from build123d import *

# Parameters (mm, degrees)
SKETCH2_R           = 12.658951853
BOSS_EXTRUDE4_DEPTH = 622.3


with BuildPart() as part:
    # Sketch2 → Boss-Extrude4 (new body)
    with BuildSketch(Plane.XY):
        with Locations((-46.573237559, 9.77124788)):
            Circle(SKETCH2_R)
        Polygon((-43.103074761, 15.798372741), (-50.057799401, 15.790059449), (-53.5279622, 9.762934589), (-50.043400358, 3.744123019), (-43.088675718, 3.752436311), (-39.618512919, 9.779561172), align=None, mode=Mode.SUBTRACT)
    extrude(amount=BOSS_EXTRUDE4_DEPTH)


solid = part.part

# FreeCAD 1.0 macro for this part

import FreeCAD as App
import Part
import Sketcher

V = App.Vector
Q = App.Units.Quantity


def add_polygon(sketch, points):
    """Adds a closed chain of lines whose ends are joined by coincident constraints."""
    first, n = sketch.GeometryCount, len(points)
    for a, b in zip(points, points[1:] + points[:1]):
        sketch.addGeometry(Part.LineSegment(App.Vector(*a, 0), App.Vector(*b, 0)), False)
    for i in range(n):
        sketch.addConstraint(Sketcher.Constraint("Coincident", first + i, 2, first + (i + 1) % n, 1))

doc = App.newDocument("Part")
body = doc.addObject("PartDesign::Body", "Body")

sketch1 = body.newObject("Sketcher::SketchObject", "Sketch")
sketch1.AttachmentSupport = (doc.getObject("XY_Plane"), [""])
sketch1.MapMode = "FlatFace"
sketch1.addGeometry(Part.Circle(V(-46.573238, 9.771248, 0), V(0, 0, 1), 12.658952), False)
add_polygon(sketch1, [(-50.057799, 15.790059), (-43.103075, 15.798373), (-39.618513, 9.779561), (-43.088676, 3.752436), (-50.0434, 3.744123), (-53.527962, 9.762935)])
sketch1.addConstraint([
    Sketcher.Constraint("Parallel", 1, 4),
    Sketcher.Constraint("Parallel", 2, 5),
    Sketcher.Constraint("Parallel", 3, 6),
    Sketcher.Constraint("Equal", 1, 2),
    Sketcher.Constraint("Equal", 2, 3),
    Sketcher.Constraint("Equal", 3, 4),
    Sketcher.Constraint("Diameter", 0, Q("25.317904 mm")),
    Sketcher.Constraint("DistanceX", 5, 2, -1, 1, Q("2.1074001 in")),
    Sketcher.Constraint("DistanceX", 4, 2, -1, 1, Q("50.0434 mm")),
    Sketcher.Constraint("DistanceX", 6, 2, -1, 1, Q("50.057799 mm")),
    Sketcher.Constraint("DistanceY", 3, 2, 5, 2, Q("6.010498 mm")),
    Sketcher.Constraint("Distance", 1, Q("6.95473 mm")),
    Sketcher.Constraint("DistanceY", -1, 1, 2, 2, Q("9.779561 mm")),
    Sketcher.Constraint("DistanceX", 0, 3, 3, 2, Q("3.484562 mm")),
    Sketcher.Constraint("DistanceY", 3, 2, 0, 3, Q("6.018812 mm")),
])
pad1 = body.newObject("PartDesign::Pad", "Pad")
pad1.Profile = sketch1
pad1.Length = Q("24.5 in")

doc.recompute()
